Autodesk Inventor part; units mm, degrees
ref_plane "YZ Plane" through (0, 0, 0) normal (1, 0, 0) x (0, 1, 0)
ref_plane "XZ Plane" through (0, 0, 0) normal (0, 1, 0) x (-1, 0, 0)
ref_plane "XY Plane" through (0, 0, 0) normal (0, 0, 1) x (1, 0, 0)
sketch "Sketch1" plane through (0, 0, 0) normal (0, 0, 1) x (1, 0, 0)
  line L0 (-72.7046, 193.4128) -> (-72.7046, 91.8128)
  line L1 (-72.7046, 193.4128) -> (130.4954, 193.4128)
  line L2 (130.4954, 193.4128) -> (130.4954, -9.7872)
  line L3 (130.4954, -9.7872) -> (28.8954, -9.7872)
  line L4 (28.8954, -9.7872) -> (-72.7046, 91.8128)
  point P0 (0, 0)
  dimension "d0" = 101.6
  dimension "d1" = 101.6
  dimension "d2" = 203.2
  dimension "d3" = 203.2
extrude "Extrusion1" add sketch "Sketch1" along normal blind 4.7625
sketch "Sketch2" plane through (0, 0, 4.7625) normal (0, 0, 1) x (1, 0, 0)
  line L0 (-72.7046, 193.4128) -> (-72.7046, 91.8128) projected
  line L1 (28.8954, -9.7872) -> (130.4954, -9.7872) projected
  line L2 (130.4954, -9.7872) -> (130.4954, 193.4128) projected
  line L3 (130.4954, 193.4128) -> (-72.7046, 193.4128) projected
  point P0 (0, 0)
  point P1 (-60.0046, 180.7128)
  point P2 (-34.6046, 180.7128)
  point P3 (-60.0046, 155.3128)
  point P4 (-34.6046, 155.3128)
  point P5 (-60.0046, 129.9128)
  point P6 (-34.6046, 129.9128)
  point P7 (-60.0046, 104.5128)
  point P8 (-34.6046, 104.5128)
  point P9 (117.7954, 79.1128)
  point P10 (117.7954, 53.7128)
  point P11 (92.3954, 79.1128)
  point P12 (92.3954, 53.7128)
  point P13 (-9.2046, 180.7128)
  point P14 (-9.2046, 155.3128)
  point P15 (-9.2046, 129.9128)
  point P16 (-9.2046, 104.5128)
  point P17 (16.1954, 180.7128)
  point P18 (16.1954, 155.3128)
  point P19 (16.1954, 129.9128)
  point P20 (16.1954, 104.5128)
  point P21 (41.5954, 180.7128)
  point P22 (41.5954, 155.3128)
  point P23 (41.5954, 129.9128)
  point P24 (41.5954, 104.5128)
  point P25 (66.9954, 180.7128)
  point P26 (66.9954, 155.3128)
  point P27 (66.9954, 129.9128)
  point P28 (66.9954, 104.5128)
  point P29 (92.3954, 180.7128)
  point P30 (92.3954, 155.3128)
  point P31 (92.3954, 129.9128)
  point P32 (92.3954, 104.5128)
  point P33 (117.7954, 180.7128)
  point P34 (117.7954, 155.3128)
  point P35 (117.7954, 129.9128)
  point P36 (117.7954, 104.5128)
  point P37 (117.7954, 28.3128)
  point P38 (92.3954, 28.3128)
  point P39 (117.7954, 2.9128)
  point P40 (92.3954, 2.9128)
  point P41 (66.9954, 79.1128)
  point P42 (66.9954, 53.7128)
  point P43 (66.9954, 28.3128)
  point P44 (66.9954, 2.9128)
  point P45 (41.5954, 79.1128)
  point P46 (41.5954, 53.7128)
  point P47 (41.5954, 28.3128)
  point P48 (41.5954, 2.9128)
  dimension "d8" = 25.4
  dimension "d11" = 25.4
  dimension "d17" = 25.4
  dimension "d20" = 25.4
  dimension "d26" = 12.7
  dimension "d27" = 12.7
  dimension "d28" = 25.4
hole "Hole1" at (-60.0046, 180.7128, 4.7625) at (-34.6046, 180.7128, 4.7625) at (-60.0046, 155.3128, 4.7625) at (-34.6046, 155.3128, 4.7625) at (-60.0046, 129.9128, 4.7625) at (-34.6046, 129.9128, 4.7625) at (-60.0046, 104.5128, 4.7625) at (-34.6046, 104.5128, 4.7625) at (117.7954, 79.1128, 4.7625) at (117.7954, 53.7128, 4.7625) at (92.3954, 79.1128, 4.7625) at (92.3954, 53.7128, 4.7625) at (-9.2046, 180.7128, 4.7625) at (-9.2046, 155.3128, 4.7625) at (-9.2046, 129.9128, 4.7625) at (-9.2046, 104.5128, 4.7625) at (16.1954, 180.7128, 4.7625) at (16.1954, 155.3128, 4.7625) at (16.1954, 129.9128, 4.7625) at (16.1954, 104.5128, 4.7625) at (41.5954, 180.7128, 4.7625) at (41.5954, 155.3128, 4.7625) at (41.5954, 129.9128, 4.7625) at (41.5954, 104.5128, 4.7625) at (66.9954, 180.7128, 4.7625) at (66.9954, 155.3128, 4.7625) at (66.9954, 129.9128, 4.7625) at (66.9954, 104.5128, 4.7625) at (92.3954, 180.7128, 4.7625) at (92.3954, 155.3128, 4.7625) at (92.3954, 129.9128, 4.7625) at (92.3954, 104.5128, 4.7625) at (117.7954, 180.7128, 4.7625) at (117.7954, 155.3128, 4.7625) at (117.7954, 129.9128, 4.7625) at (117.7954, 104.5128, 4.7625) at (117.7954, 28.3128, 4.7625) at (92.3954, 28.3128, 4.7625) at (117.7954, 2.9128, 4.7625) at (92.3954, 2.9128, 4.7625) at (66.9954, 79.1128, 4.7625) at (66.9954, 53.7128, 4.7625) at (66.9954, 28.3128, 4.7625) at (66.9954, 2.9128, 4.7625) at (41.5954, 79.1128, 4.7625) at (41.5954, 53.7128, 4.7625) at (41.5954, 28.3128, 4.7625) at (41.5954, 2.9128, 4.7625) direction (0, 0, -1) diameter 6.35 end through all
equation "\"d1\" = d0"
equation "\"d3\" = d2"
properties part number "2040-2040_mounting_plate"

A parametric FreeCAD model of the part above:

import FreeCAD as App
import Part
import Sketcher
from FreeCAD import Vector
Q = App.Units.Quantity


def add_polygon(sketch, points):
    """Adds a closed chain of lines whose ends are joined by coincident constraints."""
    first, n = sketch.GeometryCount, len(points)
    for a, b in zip(points, points[1:] + points[:1]):
        sketch.addGeometry(Part.LineSegment(App.Vector(*a, 0), App.Vector(*b, 0)), False)
    for i in range(n):
        sketch.addConstraint(Sketcher.Constraint("Coincident", first + i, 2, first + (i + 1) % n, 1))

doc = App.newDocument("Part")
body = doc.addObject("PartDesign::Body", "Body")

# Sketch on XY plane
sketch1 = body.newObject("Sketcher::SketchObject", "Sketch")
sketch1.AttachmentSupport = (doc.getObject("XY_Plane"), [""])
sketch1.MapMode = "FlatFace"
add_polygon(sketch1, [(130.4954, 193.4128), (-72.7046, 193.4128), (-72.7046, 91.8128), (28.8954, -9.7872), (130.4954, -9.7872)])  # lines 0-4
sketch1.addConstraint([
    Sketcher.Constraint("Horizontal", 0),
    Sketcher.Constraint("Vertical", 1),
    Sketcher.Constraint("Horizontal", 3),
    Sketcher.Constraint("Vertical", 4),
    Sketcher.Constraint("Equal", 3, 1),
    Sketcher.Constraint("Equal", 0, 4),
    Sketcher.Constraint("DistanceX", 0, 2, 0, 1, Q("8 in")),
    Sketcher.Constraint("DistanceX", 3, 1, 3, 2, Q("4 in")),
    Sketcher.Constraint("DistanceX", 0, 2, -1, 1, Q("72.7046 mm")),
    Sketcher.Constraint("DistanceY", -1, 1, 0, 2, Q("193.4128 mm")),
])
pad1 = body.newObject("PartDesign::Pad", "Pad")
pad1.Profile = sketch1
pad1.Length = Q("0.1875 in")

# Sketch on XY plane
sketch2 = body.newObject("Sketcher::SketchObject", "Sketch001")
sketch2.AttachmentSupport = (doc.getObject("XY_Plane"), [""])
sketch2.MapMode = "FlatFace"
sketch2.AttachmentOffset = App.Placement(Vector(0, 0, 0.1875 * 25.4), App.Rotation())
sketch2.addGeometry([
    Part.Circle(Vector(-60.0046, 180.7128, 0), Vector(0, 0, 1), 3.175),  # 0
    Part.Circle(Vector(-34.6046, 180.7128, 0), Vector(0, 0, 1), 3.175),  # 1
    Part.Circle(Vector(-60.0046, 155.3128, 0), Vector(0, 0, 1), 3.175),  # 2
    Part.Circle(Vector(-34.6046, 155.3128, 0), Vector(0, 0, 1), 3.175),  # 3
    Part.Circle(Vector(-60.0046, 129.9128, 0), Vector(0, 0, 1), 3.175),  # 4
    Part.Circle(Vector(-34.6046, 129.9128, 0), Vector(0, 0, 1), 3.175),  # 5
    Part.Circle(Vector(-60.0046, 104.5128, 0), Vector(0, 0, 1), 3.175),  # 6
    Part.Circle(Vector(-34.6046, 104.5128, 0), Vector(0, 0, 1), 3.175),  # 7
    Part.Circle(Vector(117.7954, 79.1128, 0), Vector(0, 0, 1), 3.175),  # 8
    Part.Circle(Vector(117.7954, 53.7128, 0), Vector(0, 0, 1), 3.175),  # 9
    Part.Circle(Vector(92.3954, 79.1128, 0), Vector(0, 0, 1), 3.175),  # 10
    Part.Circle(Vector(92.3954, 53.7128, 0), Vector(0, 0, 1), 3.175),  # 11
    Part.Circle(Vector(-9.2046, 180.7128, 0), Vector(0, 0, 1), 3.175),  # 12
    Part.Circle(Vector(-9.2046, 155.3128, 0), Vector(0, 0, 1), 3.175),  # 13
    Part.Circle(Vector(-9.2046, 129.9128, 0), Vector(0, 0, 1), 3.175),  # 14
    Part.Circle(Vector(-9.2046, 104.5128, 0), Vector(0, 0, 1), 3.175),  # 15
    Part.Circle(Vector(16.1954, 180.7128, 0), Vector(0, 0, 1), 3.175),  # 16
    Part.Circle(Vector(16.1954, 155.3128, 0), Vector(0, 0, 1), 3.175),  # 17
    Part.Circle(Vector(16.1954, 129.9128, 0), Vector(0, 0, 1), 3.175),  # 18
    Part.Circle(Vector(16.1954, 104.5128, 0), Vector(0, 0, 1), 3.175),  # 19
    Part.Circle(Vector(41.5954, 180.7128, 0), Vector(0, 0, 1), 3.175),  # 20
    Part.Circle(Vector(41.5954, 155.3128, 0), Vector(0, 0, 1), 3.175),  # 21
    Part.Circle(Vector(41.5954, 129.9128, 0), Vector(0, 0, 1), 3.175),  # 22
    Part.Circle(Vector(41.5954, 104.5128, 0), Vector(0, 0, 1), 3.175),  # 23
    Part.Circle(Vector(66.9954, 180.7128, 0), Vector(0, 0, 1), 3.175),  # 24
    Part.Circle(Vector(66.9954, 155.3128, 0), Vector(0, 0, 1), 3.175),  # 25
    Part.Circle(Vector(66.9954, 129.9128, 0), Vector(0, 0, 1), 3.175),  # 26
    Part.Circle(Vector(66.9954, 104.5128, 0), Vector(0, 0, 1), 3.175),  # 27
    Part.Circle(Vector(92.3954, 180.7128, 0), Vector(0, 0, 1), 3.175),  # 28
    Part.Circle(Vector(92.3954, 155.3128, 0), Vector(0, 0, 1), 3.175),  # 29
    Part.Circle(Vector(92.3954, 129.9128, 0), Vector(0, 0, 1), 3.175),  # 30
    Part.Circle(Vector(92.3954, 104.5128, 0), Vector(0, 0, 1), 3.175),  # 31
    Part.Circle(Vector(117.7954, 180.7128, 0), Vector(0, 0, 1), 3.175),  # 32
    Part.Circle(Vector(117.7954, 155.3128, 0), Vector(0, 0, 1), 3.175),  # 33
    Part.Circle(Vector(117.7954, 129.9128, 0), Vector(0, 0, 1), 3.175),  # 34
    Part.Circle(Vector(117.7954, 104.5128, 0), Vector(0, 0, 1), 3.175),  # 35
    Part.Circle(Vector(117.7954, 28.3128, 0), Vector(0, 0, 1), 3.175),  # 36
    Part.Circle(Vector(92.3954, 28.3128, 0), Vector(0, 0, 1), 3.175),  # 37
    Part.Circle(Vector(117.7954, 2.9128, 0), Vector(0, 0, 1), 3.175),  # 38
    Part.Circle(Vector(92.3954, 2.9128, 0), Vector(0, 0, 1), 3.175),  # 39
    Part.Circle(Vector(66.9954, 79.1128, 0), Vector(0, 0, 1), 3.175),  # 40
    Part.Circle(Vector(66.9954, 53.7128, 0), Vector(0, 0, 1), 3.175),  # 41
    Part.Circle(Vector(66.9954, 28.3128, 0), Vector(0, 0, 1), 3.175),  # 42
    Part.Circle(Vector(66.9954, 2.9128, 0), Vector(0, 0, 1), 3.175),  # 43
    Part.Circle(Vector(41.5954, 79.1128, 0), Vector(0, 0, 1), 3.175),  # 44
    Part.Circle(Vector(41.5954, 53.7128, 0), Vector(0, 0, 1), 3.175),  # 45
    Part.Circle(Vector(41.5954, 28.3128, 0), Vector(0, 0, 1), 3.175),  # 46
    Part.Circle(Vector(41.5954, 2.9128, 0), Vector(0, 0, 1), 3.175),  # 47
], False)
sketch2.addConstraint([
    Sketcher.Constraint("Equal", 0, 1),
    Sketcher.Constraint("Equal", 1, 2),
    Sketcher.Constraint("Equal", 2, 3),
    Sketcher.Constraint("Equal", 3, 4),
    Sketcher.Constraint("Equal", 4, 5),
    Sketcher.Constraint("Equal", 5, 6),
    Sketcher.Constraint("Equal", 6, 7),
    Sketcher.Constraint("Equal", 7, 8),
    Sketcher.Constraint("Equal", 8, 9),
    Sketcher.Constraint("Equal", 9, 10),
    Sketcher.Constraint("Equal", 10, 11),
    Sketcher.Constraint("Equal", 11, 12),
    Sketcher.Constraint("Equal", 12, 13),
    Sketcher.Constraint("Equal", 13, 14),
    Sketcher.Constraint("Equal", 14, 15),
    Sketcher.Constraint("Equal", 15, 16),
    Sketcher.Constraint("Equal", 16, 17),
    Sketcher.Constraint("Equal", 17, 18),
    Sketcher.Constraint("Equal", 18, 19),
    Sketcher.Constraint("Equal", 19, 20),
    Sketcher.Constraint("Equal", 20, 21),
    Sketcher.Constraint("Equal", 21, 22),
    Sketcher.Constraint("Equal", 22, 23),
    Sketcher.Constraint("Equal", 23, 24),
    Sketcher.Constraint("Equal", 24, 25),
    Sketcher.Constraint("Equal", 25, 26),
    Sketcher.Constraint("Equal", 26, 27),
    Sketcher.Constraint("Equal", 27, 28),
    Sketcher.Constraint("Equal", 28, 29),
    Sketcher.Constraint("Equal", 29, 30),
    Sketcher.Constraint("Equal", 30, 31),
    Sketcher.Constraint("Equal", 31, 32),
    Sketcher.Constraint("Equal", 32, 33),
    Sketcher.Constraint("Equal", 33, 34),
    Sketcher.Constraint("Equal", 34, 35),
    Sketcher.Constraint("Equal", 35, 36),
    Sketcher.Constraint("Equal", 36, 37),
    Sketcher.Constraint("Equal", 37, 38),
    Sketcher.Constraint("Equal", 38, 39),
    Sketcher.Constraint("Equal", 39, 40),
    Sketcher.Constraint("Equal", 40, 41),
    Sketcher.Constraint("Equal", 41, 42),
    Sketcher.Constraint("Equal", 42, 43),
    Sketcher.Constraint("Equal", 43, 44),
    Sketcher.Constraint("Equal", 44, 45),
    Sketcher.Constraint("Equal", 45, 46),
    Sketcher.Constraint("Equal", 46, 47),
    Sketcher.Constraint("Horizontal", 0, 3, 1, 3),
    Sketcher.Constraint("Horizontal", 2, 3, 3, 3),
    Sketcher.Constraint("Horizontal", 4, 3, 5, 3),
    Sketcher.Constraint("Horizontal", 6, 3, 7, 3),
    Sketcher.Constraint("Horizontal", 8, 3, 10, 3),
    Sketcher.Constraint("Horizontal", 9, 3, 11, 3),
    Sketcher.Constraint("Horizontal", 1, 3, 12, 3),
    Sketcher.Constraint("Horizontal", 3, 3, 13, 3),
    Sketcher.Constraint("Horizontal", 5, 3, 14, 3),
    Sketcher.Constraint("Horizontal", 7, 3, 15, 3),
    Sketcher.Constraint("Horizontal", 12, 3, 16, 3),
    Sketcher.Constraint("Horizontal", 13, 3, 17, 3),
    Sketcher.Constraint("Horizontal", 14, 3, 18, 3),
    Sketcher.Constraint("Horizontal", 15, 3, 19, 3),
    Sketcher.Constraint("Horizontal", 16, 3, 20, 3),
    Sketcher.Constraint("Horizontal", 17, 3, 21, 3),
    Sketcher.Constraint("Horizontal", 18, 3, 22, 3),
    Sketcher.Constraint("Horizontal", 19, 3, 23, 3),
    Sketcher.Constraint("Horizontal", 20, 3, 24, 3),
    Sketcher.Constraint("Horizontal", 21, 3, 25, 3),
    Sketcher.Constraint("Horizontal", 22, 3, 26, 3),
    Sketcher.Constraint("Horizontal", 23, 3, 27, 3),
    Sketcher.Constraint("Horizontal", 24, 3, 28, 3),
    Sketcher.Constraint("Horizontal", 25, 3, 29, 3),
    Sketcher.Constraint("Horizontal", 26, 3, 30, 3),
    Sketcher.Constraint("Horizontal", 27, 3, 31, 3),
    Sketcher.Constraint("Horizontal", 28, 3, 32, 3),
    Sketcher.Constraint("Horizontal", 29, 3, 33, 3),
    Sketcher.Constraint("Horizontal", 30, 3, 34, 3),
    Sketcher.Constraint("Horizontal", 31, 3, 35, 3),
    Sketcher.Constraint("Horizontal", 36, 3, 37, 3),
    Sketcher.Constraint("Horizontal", 38, 3, 39, 3),
    Sketcher.Constraint("Horizontal", 10, 3, 40, 3),
    Sketcher.Constraint("Horizontal", 11, 3, 41, 3),
    Sketcher.Constraint("Horizontal", 37, 3, 42, 3),
    Sketcher.Constraint("Horizontal", 39, 3, 43, 3),
    Sketcher.Constraint("Horizontal", 40, 3, 44, 3),
    Sketcher.Constraint("Horizontal", 41, 3, 45, 3),
    Sketcher.Constraint("Horizontal", 42, 3, 46, 3),
    Sketcher.Constraint("Horizontal", 43, 3, 47, 3),
    Sketcher.Constraint("Vertical", 0, 3, 2, 3),
    Sketcher.Constraint("Vertical", 1, 3, 3, 3),
    Sketcher.Constraint("Vertical", 2, 3, 4, 3),
    Sketcher.Constraint("Vertical", 3, 3, 5, 3),
    Sketcher.Constraint("Vertical", 4, 3, 6, 3),
    Sketcher.Constraint("Vertical", 5, 3, 7, 3),
    Sketcher.Constraint("Vertical", 8, 3, 9, 3),
    Sketcher.Constraint("Vertical", 10, 3, 11, 3),
    Sketcher.Constraint("Vertical", 12, 3, 13, 3),
    Sketcher.Constraint("Vertical", 13, 3, 14, 3),
    Sketcher.Constraint("Vertical", 14, 3, 15, 3),
    Sketcher.Constraint("Vertical", 16, 3, 17, 3),
    Sketcher.Constraint("Vertical", 17, 3, 18, 3),
    Sketcher.Constraint("Vertical", 18, 3, 19, 3),
    Sketcher.Constraint("Vertical", 20, 3, 21, 3),
    Sketcher.Constraint("Vertical", 21, 3, 22, 3),
    Sketcher.Constraint("Vertical", 22, 3, 23, 3),
    Sketcher.Constraint("Vertical", 24, 3, 25, 3),
    Sketcher.Constraint("Vertical", 25, 3, 26, 3),
    Sketcher.Constraint("Vertical", 26, 3, 27, 3),
    Sketcher.Constraint("Vertical", 11, 3, 28, 3),
    Sketcher.Constraint("Vertical", 28, 3, 29, 3),
    Sketcher.Constraint("Vertical", 29, 3, 30, 3),
    Sketcher.Constraint("Vertical", 30, 3, 31, 3),
    Sketcher.Constraint("Vertical", 9, 3, 32, 3),
    Sketcher.Constraint("Vertical", 32, 3, 33, 3),
    Sketcher.Constraint("Vertical", 33, 3, 34, 3),
    Sketcher.Constraint("Vertical", 34, 3, 35, 3),
    Sketcher.Constraint("Vertical", 35, 3, 36, 3),
    Sketcher.Constraint("Vertical", 31, 3, 37, 3),
    Sketcher.Constraint("Vertical", 36, 3, 38, 3),
    Sketcher.Constraint("Vertical", 37, 3, 39, 3),
    Sketcher.Constraint("Vertical", 27, 3, 40, 3),
    Sketcher.Constraint("Vertical", 40, 3, 41, 3),
    Sketcher.Constraint("Vertical", 41, 3, 42, 3),
    Sketcher.Constraint("Vertical", 42, 3, 43, 3),
    Sketcher.Constraint("Vertical", 23, 3, 44, 3),
    Sketcher.Constraint("Vertical", 44, 3, 45, 3),
    Sketcher.Constraint("Vertical", 45, 3, 46, 3),
    Sketcher.Constraint("Vertical", 46, 3, 47, 3),
    Sketcher.Constraint("Diameter", 0, Q("0.25 in")),
    Sketcher.Constraint("DistanceX", 0, 3, 1, 3, Q("1 in")),
    Sketcher.Constraint("DistanceY", 2, 3, 0, 3, Q("1 in")),
    Sketcher.Constraint("DistanceY", 4, 3, 2, 3, Q("1 in")),
    Sketcher.Constraint("DistanceY", 6, 3, 4, 3, Q("1 in")),
    Sketcher.Constraint("DistanceX", 7, 3, 8, 3, Q("6 in")),
    Sketcher.Constraint("DistanceY", 8, 3, 7, 3, Q("1 in")),
    Sketcher.Constraint("DistanceY", 9, 3, 8, 3, Q("1 in")),
    Sketcher.Constraint("DistanceX", 10, 3, 8, 3, Q("1 in")),
    Sketcher.Constraint("DistanceX", 1, 3, 12, 3, Q("1 in")),
    Sketcher.Constraint("DistanceX", 12, 3, 16, 3, Q("1 in")),
    Sketcher.Constraint("DistanceX", 16, 3, 20, 3, Q("1 in")),
    Sketcher.Constraint("DistanceX", 20, 3, 24, 3, Q("1 in")),
    Sketcher.Constraint("DistanceY", 36, 3, 9, 3, Q("1 in")),
    Sketcher.Constraint("DistanceY", 38, 3, 36, 3, Q("1 in")),
    Sketcher.Constraint("DistanceX", 0, 3, -1, 1, Q("60.0046 mm")),
    Sketcher.Constraint("DistanceY", -1, 1, 0, 3, Q("180.7128 mm")),
])
doc.recompute()
hole = body.newObject("PartDesign::Hole", "Hole")
hole.Profile = sketch2
hole.ThreadType = "None"
hole.Diameter = Q("0.25 in")
hole.DepthType = "ThroughAll"

doc.recompute()
